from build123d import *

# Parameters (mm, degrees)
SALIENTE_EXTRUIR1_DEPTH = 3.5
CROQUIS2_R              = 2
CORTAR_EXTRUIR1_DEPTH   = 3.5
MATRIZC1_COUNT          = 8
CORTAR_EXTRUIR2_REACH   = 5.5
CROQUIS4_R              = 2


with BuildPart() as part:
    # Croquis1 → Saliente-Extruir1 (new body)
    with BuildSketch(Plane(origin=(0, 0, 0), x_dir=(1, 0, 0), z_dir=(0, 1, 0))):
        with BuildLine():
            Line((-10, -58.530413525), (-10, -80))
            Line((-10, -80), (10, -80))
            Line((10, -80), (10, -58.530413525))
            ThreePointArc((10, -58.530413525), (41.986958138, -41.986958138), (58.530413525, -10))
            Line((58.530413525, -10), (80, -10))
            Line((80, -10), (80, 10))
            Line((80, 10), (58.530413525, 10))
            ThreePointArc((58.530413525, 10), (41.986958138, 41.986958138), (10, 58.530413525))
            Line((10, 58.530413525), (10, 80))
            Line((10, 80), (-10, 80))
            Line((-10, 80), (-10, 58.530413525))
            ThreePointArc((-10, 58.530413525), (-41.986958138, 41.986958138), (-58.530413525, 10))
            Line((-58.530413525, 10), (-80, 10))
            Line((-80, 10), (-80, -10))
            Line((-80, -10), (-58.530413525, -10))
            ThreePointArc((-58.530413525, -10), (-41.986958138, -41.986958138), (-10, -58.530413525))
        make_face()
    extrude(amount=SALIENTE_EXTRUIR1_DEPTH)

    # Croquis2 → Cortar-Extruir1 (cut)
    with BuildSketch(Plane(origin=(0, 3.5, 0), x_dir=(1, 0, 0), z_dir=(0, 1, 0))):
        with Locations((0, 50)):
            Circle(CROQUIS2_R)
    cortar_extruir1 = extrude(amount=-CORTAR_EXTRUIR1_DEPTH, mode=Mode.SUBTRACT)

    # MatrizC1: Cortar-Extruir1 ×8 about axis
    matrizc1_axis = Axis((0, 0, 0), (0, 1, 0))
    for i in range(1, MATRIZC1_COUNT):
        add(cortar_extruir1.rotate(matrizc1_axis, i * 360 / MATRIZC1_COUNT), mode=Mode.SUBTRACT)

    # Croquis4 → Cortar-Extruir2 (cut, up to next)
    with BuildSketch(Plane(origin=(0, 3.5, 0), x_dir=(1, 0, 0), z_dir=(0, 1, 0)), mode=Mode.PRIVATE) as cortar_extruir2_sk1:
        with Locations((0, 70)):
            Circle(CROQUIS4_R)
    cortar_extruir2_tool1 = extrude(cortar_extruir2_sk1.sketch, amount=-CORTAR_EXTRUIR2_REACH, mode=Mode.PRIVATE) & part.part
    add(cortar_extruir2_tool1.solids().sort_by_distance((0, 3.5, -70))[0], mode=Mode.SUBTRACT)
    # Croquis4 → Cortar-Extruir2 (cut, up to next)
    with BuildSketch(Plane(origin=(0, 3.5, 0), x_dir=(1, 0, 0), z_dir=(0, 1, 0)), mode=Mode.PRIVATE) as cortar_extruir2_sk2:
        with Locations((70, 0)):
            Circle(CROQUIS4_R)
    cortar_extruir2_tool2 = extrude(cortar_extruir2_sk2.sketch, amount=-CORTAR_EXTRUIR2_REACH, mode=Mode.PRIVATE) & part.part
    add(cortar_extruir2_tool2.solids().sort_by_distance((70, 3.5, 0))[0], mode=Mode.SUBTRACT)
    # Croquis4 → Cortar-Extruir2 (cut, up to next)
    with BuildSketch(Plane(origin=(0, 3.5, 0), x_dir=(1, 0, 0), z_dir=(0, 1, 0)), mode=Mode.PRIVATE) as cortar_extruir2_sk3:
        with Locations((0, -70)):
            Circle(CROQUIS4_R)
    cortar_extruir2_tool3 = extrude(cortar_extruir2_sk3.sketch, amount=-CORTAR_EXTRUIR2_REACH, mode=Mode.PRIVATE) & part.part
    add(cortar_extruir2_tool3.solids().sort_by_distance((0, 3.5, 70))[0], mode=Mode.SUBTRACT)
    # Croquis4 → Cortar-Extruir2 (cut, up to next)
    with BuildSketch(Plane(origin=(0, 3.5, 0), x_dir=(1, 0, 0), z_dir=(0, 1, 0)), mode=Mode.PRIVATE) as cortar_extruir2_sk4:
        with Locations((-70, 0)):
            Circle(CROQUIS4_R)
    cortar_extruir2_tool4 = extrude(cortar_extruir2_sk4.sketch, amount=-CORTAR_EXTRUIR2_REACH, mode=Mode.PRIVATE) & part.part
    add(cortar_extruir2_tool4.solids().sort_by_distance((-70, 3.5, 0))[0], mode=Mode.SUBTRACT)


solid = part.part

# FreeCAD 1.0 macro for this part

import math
import FreeCAD as App
import Part
import Sketcher

V = App.Vector

doc = App.newDocument("Part")
body = doc.addObject("PartDesign::Body", "Body")

# Sketch on XZ plane
sketch1 = body.newObject("Sketcher::SketchObject", "Sketch")
sketch1.AttachmentSupport = (doc.getObject("XZ_Plane"), [""])
sketch1.MapMode = "FlatFace"
sketch1.addGeometry([
    Part.LineSegment(V(-10, 59, 0), V(-10, 80, 0)),  # 0
    Part.LineSegment(V(-10, 80, 0), V(10, 80, 0)),  # 1
    Part.LineSegment(V(10, 80, 0), V(10, 59, 0)),  # 2
    Part.ArcOfCircle(Part.Circle(V(0, 0, 0), V(0, 0, 1), 59), math.radians(10), math.radians(80)),  # 3
    Part.LineSegment(V(59, 10, 0), V(80, 10, 0)),  # 4
    Part.LineSegment(V(80, 10, 0), V(80, -10, 0)),  # 5
    Part.LineSegment(V(80, -10, 0), V(59, -10, 0)),  # 6
    Part.ArcOfCircle(Part.Circle(V(0, 0, 0), V(0, 0, 1), 59), math.radians(-80), math.radians(-10)),  # 7
    Part.LineSegment(V(10, -59, 0), V(10, -80, 0)),  # 8
    Part.LineSegment(V(10, -80, 0), V(-10, -80, 0)),  # 9
    Part.LineSegment(V(-10, -80, 0), V(-10, -59, 0)),  # 10
    Part.ArcOfCircle(Part.Circle(V(0, 0, 0), V(0, 0, 1), 59), math.radians(-170), math.radians(-100)),  # 11
    Part.LineSegment(V(-59, -10, 0), V(-80, -10, 0)),  # 12
    Part.LineSegment(V(-80, -10, 0), V(-80, 10, 0)),  # 13
    Part.LineSegment(V(-80, 10, 0), V(-59, 10, 0)),  # 14
    Part.ArcOfCircle(Part.Circle(V(0, 0, 0), V(0, 0, 1), 59), math.radians(100), math.radians(170)),  # 15
], False)
sketch1.addConstraint([
    Sketcher.Constraint("Coincident", 0, 2, 1, 1),
    Sketcher.Constraint("Coincident", 1, 2, 2, 1),
    Sketcher.Constraint("Coincident", 2, 2, 3, 2),
    Sketcher.Constraint("Coincident", 3, 1, 4, 1),
    Sketcher.Constraint("Coincident", 4, 2, 5, 1),
    Sketcher.Constraint("Coincident", 5, 2, 6, 1),
    Sketcher.Constraint("Coincident", 6, 2, 7, 2),
    Sketcher.Constraint("Coincident", 7, 1, 8, 1),
    Sketcher.Constraint("Coincident", 8, 2, 9, 1),
    Sketcher.Constraint("Coincident", 9, 2, 10, 1),
    Sketcher.Constraint("Coincident", 10, 2, 11, 2),
    Sketcher.Constraint("Coincident", 11, 1, 12, 1),
    Sketcher.Constraint("Coincident", 12, 2, 13, 1),
    Sketcher.Constraint("Coincident", 13, 2, 14, 1),
    Sketcher.Constraint("Coincident", 14, 2, 15, 2),
    Sketcher.Constraint("Coincident", 15, 1, 0, 1),
    Sketcher.Constraint("Vertical", 0),
    Sketcher.Constraint("Horizontal", 1),
    Sketcher.Constraint("Vertical", 2),
    Sketcher.Constraint("Horizontal", 4),
    Sketcher.Constraint("Vertical", 5),
    Sketcher.Constraint("Horizontal", 6),
    Sketcher.Constraint("Vertical", 8),
    Sketcher.Constraint("Horizontal", 9),
    Sketcher.Constraint("Vertical", 10),
    Sketcher.Constraint("Horizontal", 12),
    Sketcher.Constraint("Vertical", 13),
    Sketcher.Constraint("Horizontal", 14),
    Sketcher.Constraint("Coincident", 3, 3, -1, 1),
    Sketcher.Constraint("Coincident", 7, 3, -1, 1),
    Sketcher.Constraint("Coincident", 11, 3, -1, 1),
    Sketcher.Constraint("Coincident", 15, 3, -1, 1),
    Sketcher.Constraint("Equal", 3, 7),
    Sketcher.Constraint("Equal", 7, 11),
    Sketcher.Constraint("Equal", 11, 15),
    Sketcher.Constraint("Symmetric", 0, 2, 8, 2, -1, 1),
    Sketcher.Constraint("Symmetric", 4, 2, 12, 2, -1, 1),
    Sketcher.Constraint("Horizontal", 7, 1, 10, 2),
    Sketcher.Constraint("Horizontal", 6, 2, 11, 1),
    Sketcher.Constraint("Horizontal", 4, 2, 13, 2),
    Sketcher.Constraint("Horizontal", 2, 2, 15, 1),
    Sketcher.Constraint("Equal", 14, 0),
    Sketcher.Constraint("Equal", 9, 5),
    Sketcher.Constraint("DistanceX", 1, 1, 1, 2, 20.0),
    Sketcher.Constraint("DistanceY", -1, 1, 0, 2, 80.0),
    Sketcher.Constraint("Radius", 3, 59.378526),
])
pad1 = body.newObject("PartDesign::Pad", "Pad")
pad1.Profile = sketch1
pad1.Length = 3.5
pad1.Reversed = True

# Sketch on XZ plane
sketch2 = body.newObject("Sketcher::SketchObject", "Sketch001")
sketch2.AttachmentSupport = (doc.getObject("XZ_Plane"), [""])
sketch2.MapMode = "FlatFace"
sketch2.AttachmentOffset = App.Placement(V(0, 0, -3.5), App.Rotation())
sketch2.addGeometry(Part.Circle(V(0, -50, 0), V(0, 0, 1), 2), False)
sketch2.addConstraint([
    Sketcher.Constraint("PointOnObject", 0, 3, -2),
    Sketcher.Constraint("Diameter", 0, 4.0),
    Sketcher.Constraint("DistanceY", 0, 3, -1, 1, 50.0),
])
pocket1 = body.newObject("PartDesign::Pocket", "Pocket")
pocket1.Profile = sketch2
pocket1.Length = 3.5
pocket1.Reversed = True
doc.recompute()

polarpattern = body.newObject("PartDesign::PolarPattern", "PolarPattern")
polarpattern.Originals = [pocket1]
polarpattern.Axis = (doc.getObject("Y_Axis"), [""])
polarpattern.Angle = 360
polarpattern.Occurrences = 8
body.Tip = polarpattern

# Sketch on XZ plane
sketch3 = body.newObject("Sketcher::SketchObject", "Sketch002")
sketch3.AttachmentSupport = (doc.getObject("XZ_Plane"), [""])
sketch3.MapMode = "FlatFace"
sketch3.AttachmentOffset = App.Placement(V(0, 0, -3.5), App.Rotation())
sketch3.addGeometry(Part.Circle(V(0, -70, 0), V(0, 0, 1), 2), False)
sketch3.addConstraint([
    Sketcher.Constraint("PointOnObject", 0, 3, -2),
    Sketcher.Constraint("Diameter", 0, 4.0),
    Sketcher.Constraint("DistanceY", 0, 3, -1, 1, 70.0),
])
pocket2 = body.newObject("PartDesign::Pocket", "Pocket001")
pocket2.Profile = sketch3
pocket2.Type = "UpToFirst"
pocket2.Reversed = True

# Sketch on XZ plane
sketch4 = body.newObject("Sketcher::SketchObject", "Sketch003")
sketch4.AttachmentSupport = (doc.getObject("XZ_Plane"), [""])
sketch4.MapMode = "FlatFace"
sketch4.AttachmentOffset = App.Placement(V(0, 0, -3.5), App.Rotation())
sketch4.addGeometry(Part.Circle(V(70, 0, 0), V(0, 0, 1), 2), False)
sketch4.addConstraint([
    Sketcher.Constraint("PointOnObject", 0, 3, -1),
    Sketcher.Constraint("Diameter", 0, 4.0),
    Sketcher.Constraint("DistanceX", -1, 1, 0, 3, 70.0),
])
pocket3 = body.newObject("PartDesign::Pocket", "Pocket002")
pocket3.Profile = sketch4
pocket3.Type = "UpToFirst"
pocket3.Reversed = True

# Sketch on XZ plane
sketch5 = body.newObject("Sketcher::SketchObject", "Sketch004")
sketch5.AttachmentSupport = (doc.getObject("XZ_Plane"), [""])
sketch5.MapMode = "FlatFace"
sketch5.AttachmentOffset = App.Placement(V(0, 0, -3.5), App.Rotation())
sketch5.addGeometry(Part.Circle(V(0, 70, 0), V(0, 0, 1), 2), False)
sketch5.addConstraint([
    Sketcher.Constraint("PointOnObject", 0, 3, -2),
    Sketcher.Constraint("Diameter", 0, 4.0),
    Sketcher.Constraint("DistanceY", -1, 1, 0, 3, 70.0),
])
pocket4 = body.newObject("PartDesign::Pocket", "Pocket003")
pocket4.Profile = sketch5
pocket4.Type = "UpToFirst"
pocket4.Reversed = True

# Sketch on XZ plane
sketch6 = body.newObject("Sketcher::SketchObject", "Sketch005")
sketch6.AttachmentSupport = (doc.getObject("XZ_Plane"), [""])
sketch6.MapMode = "FlatFace"
sketch6.AttachmentOffset = App.Placement(V(0, 0, -3.5), App.Rotation())
sketch6.addGeometry(Part.Circle(V(-70, 0, 0), V(0, 0, 1), 2), False)
sketch6.addConstraint([
    Sketcher.Constraint("PointOnObject", 0, 3, -1),
    Sketcher.Constraint("Diameter", 0, 4.0),
    Sketcher.Constraint("DistanceX", 0, 3, -1, 1, 70.0),
])
pocket5 = body.newObject("PartDesign::Pocket", "Pocket004")
pocket5.Profile = sketch6
pocket5.Type = "UpToFirst"
pocket5.Reversed = True

doc.recompute()
